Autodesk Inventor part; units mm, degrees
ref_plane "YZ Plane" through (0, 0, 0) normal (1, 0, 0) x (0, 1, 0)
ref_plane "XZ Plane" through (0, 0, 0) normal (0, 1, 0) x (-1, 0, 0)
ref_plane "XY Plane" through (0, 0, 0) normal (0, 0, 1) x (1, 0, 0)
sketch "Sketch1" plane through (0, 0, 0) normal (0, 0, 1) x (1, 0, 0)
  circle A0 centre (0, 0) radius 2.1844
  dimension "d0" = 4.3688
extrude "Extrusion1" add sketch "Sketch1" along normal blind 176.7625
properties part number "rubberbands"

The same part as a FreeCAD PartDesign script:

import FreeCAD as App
import Part
import Sketcher
from FreeCAD import Vector
Q = App.Units.Quantity

doc = App.newDocument("Part")
body = doc.addObject("PartDesign::Body", "Body")

# Sketch on XY plane
sketch1 = body.newObject("Sketcher::SketchObject", "Sketch")
sketch1.AttachmentSupport = (doc.getObject("XY_Plane"), [""])
sketch1.MapMode = "FlatFace"
sketch1.addGeometry(Part.Circle(Vector(0, 0, 0), Vector(0, 0, 1), 2.2), False)
sketch1.addConstraint([
    Sketcher.Constraint("Coincident", 0, 3, -1, 1),
    Sketcher.Constraint("Diameter", 0, Q("0.172 in")),
])
pad1 = body.newObject("PartDesign::Pad", "Pad")
pad1.Profile = sketch1
pad1.Length = 176.7625

doc.recompute()
